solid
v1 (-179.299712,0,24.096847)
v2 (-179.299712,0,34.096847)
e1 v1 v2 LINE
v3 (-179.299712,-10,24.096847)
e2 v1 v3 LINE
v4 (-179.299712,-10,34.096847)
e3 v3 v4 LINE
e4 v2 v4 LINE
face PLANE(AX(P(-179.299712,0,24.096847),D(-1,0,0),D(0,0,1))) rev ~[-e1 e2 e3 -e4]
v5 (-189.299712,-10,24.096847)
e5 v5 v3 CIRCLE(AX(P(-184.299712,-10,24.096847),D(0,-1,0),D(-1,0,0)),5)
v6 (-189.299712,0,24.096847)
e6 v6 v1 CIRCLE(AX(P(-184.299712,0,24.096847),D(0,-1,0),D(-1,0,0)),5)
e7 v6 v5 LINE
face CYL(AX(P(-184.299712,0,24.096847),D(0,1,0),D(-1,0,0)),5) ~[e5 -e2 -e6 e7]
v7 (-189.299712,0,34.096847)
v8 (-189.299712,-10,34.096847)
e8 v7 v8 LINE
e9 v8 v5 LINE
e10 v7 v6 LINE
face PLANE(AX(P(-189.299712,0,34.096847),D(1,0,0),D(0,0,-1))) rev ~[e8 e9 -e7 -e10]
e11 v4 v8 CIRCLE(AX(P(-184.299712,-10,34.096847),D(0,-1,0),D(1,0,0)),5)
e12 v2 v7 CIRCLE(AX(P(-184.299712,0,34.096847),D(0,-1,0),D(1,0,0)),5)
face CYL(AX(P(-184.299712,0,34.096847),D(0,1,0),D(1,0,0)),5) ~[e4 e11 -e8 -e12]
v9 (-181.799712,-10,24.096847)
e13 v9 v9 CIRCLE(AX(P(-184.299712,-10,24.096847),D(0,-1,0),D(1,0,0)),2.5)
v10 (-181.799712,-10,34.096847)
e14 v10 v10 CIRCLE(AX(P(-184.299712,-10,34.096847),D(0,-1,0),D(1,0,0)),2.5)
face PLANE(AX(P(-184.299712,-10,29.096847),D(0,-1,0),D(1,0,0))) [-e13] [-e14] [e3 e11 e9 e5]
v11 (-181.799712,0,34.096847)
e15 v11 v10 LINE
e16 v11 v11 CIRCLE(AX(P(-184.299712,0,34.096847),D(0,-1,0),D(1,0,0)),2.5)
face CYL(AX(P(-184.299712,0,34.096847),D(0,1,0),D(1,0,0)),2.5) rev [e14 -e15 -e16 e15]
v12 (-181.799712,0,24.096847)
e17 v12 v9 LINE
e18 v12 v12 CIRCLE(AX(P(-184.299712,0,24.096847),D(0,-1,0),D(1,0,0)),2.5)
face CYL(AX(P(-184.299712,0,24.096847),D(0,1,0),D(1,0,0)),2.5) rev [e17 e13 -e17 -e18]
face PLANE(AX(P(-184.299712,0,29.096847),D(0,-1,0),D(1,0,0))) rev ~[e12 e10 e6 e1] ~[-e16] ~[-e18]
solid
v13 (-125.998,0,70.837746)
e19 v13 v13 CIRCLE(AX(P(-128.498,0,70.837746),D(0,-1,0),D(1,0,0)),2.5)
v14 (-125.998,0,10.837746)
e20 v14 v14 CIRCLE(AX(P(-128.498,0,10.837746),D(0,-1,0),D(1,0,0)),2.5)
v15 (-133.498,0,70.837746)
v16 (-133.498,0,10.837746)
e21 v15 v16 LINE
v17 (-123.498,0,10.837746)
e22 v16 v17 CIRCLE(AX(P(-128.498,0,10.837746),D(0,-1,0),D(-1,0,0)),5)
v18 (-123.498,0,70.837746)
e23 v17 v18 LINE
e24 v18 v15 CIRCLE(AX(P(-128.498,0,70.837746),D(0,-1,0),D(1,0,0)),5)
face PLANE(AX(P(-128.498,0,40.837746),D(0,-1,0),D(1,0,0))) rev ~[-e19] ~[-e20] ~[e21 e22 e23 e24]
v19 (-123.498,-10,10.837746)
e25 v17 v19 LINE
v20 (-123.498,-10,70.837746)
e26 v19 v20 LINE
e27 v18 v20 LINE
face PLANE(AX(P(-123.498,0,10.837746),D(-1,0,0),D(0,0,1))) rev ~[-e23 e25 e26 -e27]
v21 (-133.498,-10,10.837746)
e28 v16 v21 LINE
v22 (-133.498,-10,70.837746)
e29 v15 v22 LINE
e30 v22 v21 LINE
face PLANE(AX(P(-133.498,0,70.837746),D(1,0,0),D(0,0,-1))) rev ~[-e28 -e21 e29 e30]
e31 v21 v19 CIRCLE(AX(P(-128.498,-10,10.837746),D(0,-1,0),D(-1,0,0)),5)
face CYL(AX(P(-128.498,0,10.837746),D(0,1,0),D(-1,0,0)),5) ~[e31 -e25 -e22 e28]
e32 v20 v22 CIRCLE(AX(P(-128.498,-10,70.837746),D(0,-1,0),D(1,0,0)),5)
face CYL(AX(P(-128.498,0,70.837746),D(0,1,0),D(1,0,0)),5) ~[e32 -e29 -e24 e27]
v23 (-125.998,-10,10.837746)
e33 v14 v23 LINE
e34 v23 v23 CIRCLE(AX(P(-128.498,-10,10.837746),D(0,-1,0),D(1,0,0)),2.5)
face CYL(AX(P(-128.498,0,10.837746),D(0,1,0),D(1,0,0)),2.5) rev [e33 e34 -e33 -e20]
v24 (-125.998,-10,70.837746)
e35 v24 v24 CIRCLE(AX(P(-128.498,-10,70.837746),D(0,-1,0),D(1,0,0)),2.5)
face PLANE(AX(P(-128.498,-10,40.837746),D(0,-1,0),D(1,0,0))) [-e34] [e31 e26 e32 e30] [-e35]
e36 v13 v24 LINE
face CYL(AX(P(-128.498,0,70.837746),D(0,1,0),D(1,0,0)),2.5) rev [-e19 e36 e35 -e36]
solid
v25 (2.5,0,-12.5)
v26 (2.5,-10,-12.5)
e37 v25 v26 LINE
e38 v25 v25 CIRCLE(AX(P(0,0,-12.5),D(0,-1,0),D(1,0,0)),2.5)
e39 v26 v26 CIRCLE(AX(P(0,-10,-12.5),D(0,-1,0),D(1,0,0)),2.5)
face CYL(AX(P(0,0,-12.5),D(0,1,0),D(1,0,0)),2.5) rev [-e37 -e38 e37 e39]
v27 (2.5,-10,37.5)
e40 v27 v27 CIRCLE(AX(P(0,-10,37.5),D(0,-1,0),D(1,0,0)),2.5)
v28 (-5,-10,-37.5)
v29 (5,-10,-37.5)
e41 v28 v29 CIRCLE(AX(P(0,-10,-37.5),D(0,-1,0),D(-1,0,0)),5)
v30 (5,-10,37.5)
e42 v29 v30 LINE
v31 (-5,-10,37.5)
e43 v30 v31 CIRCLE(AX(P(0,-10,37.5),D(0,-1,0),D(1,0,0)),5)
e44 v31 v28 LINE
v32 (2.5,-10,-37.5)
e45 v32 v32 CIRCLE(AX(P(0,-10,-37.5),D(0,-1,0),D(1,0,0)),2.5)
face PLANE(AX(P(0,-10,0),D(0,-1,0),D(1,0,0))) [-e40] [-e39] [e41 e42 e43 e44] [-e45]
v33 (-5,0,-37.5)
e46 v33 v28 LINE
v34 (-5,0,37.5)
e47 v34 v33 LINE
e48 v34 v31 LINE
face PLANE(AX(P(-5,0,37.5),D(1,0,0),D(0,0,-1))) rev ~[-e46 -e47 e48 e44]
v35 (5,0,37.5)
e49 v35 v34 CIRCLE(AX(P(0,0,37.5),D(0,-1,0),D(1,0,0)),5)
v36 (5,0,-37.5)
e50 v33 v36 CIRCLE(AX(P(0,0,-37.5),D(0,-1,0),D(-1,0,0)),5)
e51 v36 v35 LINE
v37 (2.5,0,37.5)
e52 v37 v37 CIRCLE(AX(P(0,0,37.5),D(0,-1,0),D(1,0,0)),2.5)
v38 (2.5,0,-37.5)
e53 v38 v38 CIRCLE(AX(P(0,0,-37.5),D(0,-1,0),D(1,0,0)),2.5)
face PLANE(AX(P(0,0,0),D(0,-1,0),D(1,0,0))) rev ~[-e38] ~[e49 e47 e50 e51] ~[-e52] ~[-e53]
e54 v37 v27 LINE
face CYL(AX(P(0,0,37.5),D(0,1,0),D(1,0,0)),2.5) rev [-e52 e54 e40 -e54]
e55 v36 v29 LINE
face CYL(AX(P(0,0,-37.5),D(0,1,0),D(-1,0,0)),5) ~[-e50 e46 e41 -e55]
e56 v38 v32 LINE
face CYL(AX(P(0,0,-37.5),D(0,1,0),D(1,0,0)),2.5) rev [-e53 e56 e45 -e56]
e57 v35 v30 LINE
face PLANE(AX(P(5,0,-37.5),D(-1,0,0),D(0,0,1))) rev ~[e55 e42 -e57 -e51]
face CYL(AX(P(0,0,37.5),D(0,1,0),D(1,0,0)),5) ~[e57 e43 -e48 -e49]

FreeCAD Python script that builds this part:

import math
import FreeCAD as App
import Part
import Sketcher

doc = App.newDocument("Part")
body = doc.addObject("PartDesign::Body", "Body")

sketch1 = body.newObject("Sketcher::SketchObject", "Sketch")
sketch1.AttachmentSupport = (doc.getObject("XZ_Plane"), [""])
sketch1.MapMode = "FlatFace"
sketch1.addGeometry([
    Part.ArcOfCircle(Part.Circle(App.Vector(0, 37.5, 0), App.Vector(0, 0, 1), 5), math.radians(0), math.radians(180)),
    Part.LineSegment(App.Vector(-5, 37.5, 0), App.Vector(-5, -37.5, 0)),
    Part.ArcOfCircle(Part.Circle(App.Vector(0, -37.5, 0), App.Vector(0, 0, 1), 5), math.radians(180), math.radians(360)),
    Part.LineSegment(App.Vector(5, -37.5, 0), App.Vector(5, 37.5, 0)),
    Part.Circle(App.Vector(0, -37.5, 0), App.Vector(0, 0, 1), 2.5),
    Part.Circle(App.Vector(0, -12.5, 0), App.Vector(0, 0, 1), 2.5),
    Part.Circle(App.Vector(0, 37.5, 0), App.Vector(0, 0, 1), 2.5),
], False)
sketch1.addConstraint([
    Sketcher.Constraint("Tangent", 0, 2, 1, 1),
    Sketcher.Constraint("Tangent", 1, 2, 2, 1),
    Sketcher.Constraint("Tangent", 2, 2, 3, 1),
    Sketcher.Constraint("Tangent", 3, 2, 0, 1),
    Sketcher.Constraint("Vertical", 1),
    Sketcher.Constraint("Vertical", 3),
    Sketcher.Constraint("Coincident", 4, 3, 2, 3),
    Sketcher.Constraint("Coincident", 6, 3, 0, 3),
    Sketcher.Constraint("Equal", 4, 5),
    Sketcher.Constraint("Equal", 5, 6),
    Sketcher.Constraint("Symmetric", 0, 3, 2, 3, -1, 1),
    Sketcher.Constraint("PointOnObject", 5, 3, -2),
    Sketcher.Constraint("Diameter", 4, 5.0),
    Sketcher.Constraint("Radius", 0, 5.0),
    Sketcher.Constraint("DistanceY", 1, 2, 1, 1, 75.0),
    Sketcher.Constraint("DistanceY", 2, 3, 5, 3, 25.0),
])
pad1 = body.newObject("PartDesign::Pad", "Pad")
pad1.Profile = sketch1
pad1.Length = 10
body2 = doc.addObject("PartDesign::Body", "Body001")

sketch2 = body2.newObject("Sketcher::SketchObject", "Sketch001")
sketch2.AttachmentSupport = (doc.getObject("XZ_Plane001"), [""])
sketch2.MapMode = "FlatFace"
sketch2.addGeometry([
    Part.ArcOfCircle(Part.Circle(App.Vector(-128.5, 70.8, 0), App.Vector(0, 0, 1), 5), math.radians(0), math.radians(180)),
    Part.LineSegment(App.Vector(-133.5, 70.8, 0), App.Vector(-133.5, 10.8, 0)),
    Part.ArcOfCircle(Part.Circle(App.Vector(-128.5, 10.8, 0), App.Vector(0, 0, 1), 5), math.radians(180), math.radians(360)),
    Part.LineSegment(App.Vector(-123.5, 10.8, 0), App.Vector(-123.5, 70.8, 0)),
    Part.Circle(App.Vector(-128.5, 10.8, 0), App.Vector(0, 0, 1), 2.5),
    Part.Circle(App.Vector(-128.5, 70.8, 0), App.Vector(0, 0, 1), 2.5),
], False)
sketch2.addConstraint([
    Sketcher.Constraint("Tangent", 0, 2, 1, 1),
    Sketcher.Constraint("Tangent", 1, 2, 2, 1),
    Sketcher.Constraint("Tangent", 2, 2, 3, 1),
    Sketcher.Constraint("Tangent", 3, 2, 0, 1),
    Sketcher.Constraint("Vertical", 1),
    Sketcher.Constraint("Vertical", 3),
    Sketcher.Constraint("Coincident", 4, 3, 2, 3),
    Sketcher.Constraint("Coincident", 5, 3, 0, 3),
    Sketcher.Constraint("Equal", 4, 5),
    Sketcher.Constraint("Diameter", 4, 5.0),
    Sketcher.Constraint("Radius", 0, 5.0),
    Sketcher.Constraint("DistanceY", 1, 2, 1, 1, 60.0),
    Sketcher.Constraint("DistanceX", 0, 3, -1, 1, 128.498),
    Sketcher.Constraint("DistanceY", -1, 1, 0, 3, 70.837746),
])
pad2 = body2.newObject("PartDesign::Pad", "Pad001")
pad2.Profile = sketch2
pad2.Length = 10
body3 = doc.addObject("PartDesign::Body", "Body002")

sketch3 = body3.newObject("Sketcher::SketchObject", "Sketch002")
sketch3.AttachmentSupport = (doc.getObject("XZ_Plane002"), [""])
sketch3.MapMode = "FlatFace"
sketch3.addGeometry([
    Part.ArcOfCircle(Part.Circle(App.Vector(-184.3, 34.1, 0), App.Vector(0, 0, 1), 5), math.radians(0), math.radians(180)),
    Part.LineSegment(App.Vector(-189.3, 34.1, 0), App.Vector(-189.3, 24.1, 0)),
    Part.ArcOfCircle(Part.Circle(App.Vector(-184.3, 24.1, 0), App.Vector(0, 0, 1), 5), math.radians(180), math.radians(360)),
    Part.LineSegment(App.Vector(-179.3, 24.1, 0), App.Vector(-179.3, 34.1, 0)),
    Part.Circle(App.Vector(-184.3, 24.1, 0), App.Vector(0, 0, 1), 2.5),
    Part.Circle(App.Vector(-184.3, 34.1, 0), App.Vector(0, 0, 1), 2.5),
], False)
sketch3.addConstraint([
    Sketcher.Constraint("Tangent", 0, 2, 1, 1),
    Sketcher.Constraint("Tangent", 1, 2, 2, 1),
    Sketcher.Constraint("Tangent", 2, 2, 3, 1),
    Sketcher.Constraint("Tangent", 3, 2, 0, 1),
    Sketcher.Constraint("Vertical", 1),
    Sketcher.Constraint("Vertical", 3),
    Sketcher.Constraint("Coincident", 4, 3, 2, 3),
    Sketcher.Constraint("Coincident", 5, 3, 0, 3),
    Sketcher.Constraint("Equal", 4, 5),
    Sketcher.Constraint("Diameter", 4, 5.0),
    Sketcher.Constraint("Radius", 0, 5.0),
    Sketcher.Constraint("DistanceY", 1, 2, 1, 1, 10.0),
    Sketcher.Constraint("DistanceX", 0, 3, -1, 1, 184.299712),
    Sketcher.Constraint("DistanceY", -1, 1, 0, 3, 34.096847),
])
pad3 = body3.newObject("PartDesign::Pad", "Pad002")
pad3.Profile = sketch3
pad3.Length = 10

doc.recompute()
